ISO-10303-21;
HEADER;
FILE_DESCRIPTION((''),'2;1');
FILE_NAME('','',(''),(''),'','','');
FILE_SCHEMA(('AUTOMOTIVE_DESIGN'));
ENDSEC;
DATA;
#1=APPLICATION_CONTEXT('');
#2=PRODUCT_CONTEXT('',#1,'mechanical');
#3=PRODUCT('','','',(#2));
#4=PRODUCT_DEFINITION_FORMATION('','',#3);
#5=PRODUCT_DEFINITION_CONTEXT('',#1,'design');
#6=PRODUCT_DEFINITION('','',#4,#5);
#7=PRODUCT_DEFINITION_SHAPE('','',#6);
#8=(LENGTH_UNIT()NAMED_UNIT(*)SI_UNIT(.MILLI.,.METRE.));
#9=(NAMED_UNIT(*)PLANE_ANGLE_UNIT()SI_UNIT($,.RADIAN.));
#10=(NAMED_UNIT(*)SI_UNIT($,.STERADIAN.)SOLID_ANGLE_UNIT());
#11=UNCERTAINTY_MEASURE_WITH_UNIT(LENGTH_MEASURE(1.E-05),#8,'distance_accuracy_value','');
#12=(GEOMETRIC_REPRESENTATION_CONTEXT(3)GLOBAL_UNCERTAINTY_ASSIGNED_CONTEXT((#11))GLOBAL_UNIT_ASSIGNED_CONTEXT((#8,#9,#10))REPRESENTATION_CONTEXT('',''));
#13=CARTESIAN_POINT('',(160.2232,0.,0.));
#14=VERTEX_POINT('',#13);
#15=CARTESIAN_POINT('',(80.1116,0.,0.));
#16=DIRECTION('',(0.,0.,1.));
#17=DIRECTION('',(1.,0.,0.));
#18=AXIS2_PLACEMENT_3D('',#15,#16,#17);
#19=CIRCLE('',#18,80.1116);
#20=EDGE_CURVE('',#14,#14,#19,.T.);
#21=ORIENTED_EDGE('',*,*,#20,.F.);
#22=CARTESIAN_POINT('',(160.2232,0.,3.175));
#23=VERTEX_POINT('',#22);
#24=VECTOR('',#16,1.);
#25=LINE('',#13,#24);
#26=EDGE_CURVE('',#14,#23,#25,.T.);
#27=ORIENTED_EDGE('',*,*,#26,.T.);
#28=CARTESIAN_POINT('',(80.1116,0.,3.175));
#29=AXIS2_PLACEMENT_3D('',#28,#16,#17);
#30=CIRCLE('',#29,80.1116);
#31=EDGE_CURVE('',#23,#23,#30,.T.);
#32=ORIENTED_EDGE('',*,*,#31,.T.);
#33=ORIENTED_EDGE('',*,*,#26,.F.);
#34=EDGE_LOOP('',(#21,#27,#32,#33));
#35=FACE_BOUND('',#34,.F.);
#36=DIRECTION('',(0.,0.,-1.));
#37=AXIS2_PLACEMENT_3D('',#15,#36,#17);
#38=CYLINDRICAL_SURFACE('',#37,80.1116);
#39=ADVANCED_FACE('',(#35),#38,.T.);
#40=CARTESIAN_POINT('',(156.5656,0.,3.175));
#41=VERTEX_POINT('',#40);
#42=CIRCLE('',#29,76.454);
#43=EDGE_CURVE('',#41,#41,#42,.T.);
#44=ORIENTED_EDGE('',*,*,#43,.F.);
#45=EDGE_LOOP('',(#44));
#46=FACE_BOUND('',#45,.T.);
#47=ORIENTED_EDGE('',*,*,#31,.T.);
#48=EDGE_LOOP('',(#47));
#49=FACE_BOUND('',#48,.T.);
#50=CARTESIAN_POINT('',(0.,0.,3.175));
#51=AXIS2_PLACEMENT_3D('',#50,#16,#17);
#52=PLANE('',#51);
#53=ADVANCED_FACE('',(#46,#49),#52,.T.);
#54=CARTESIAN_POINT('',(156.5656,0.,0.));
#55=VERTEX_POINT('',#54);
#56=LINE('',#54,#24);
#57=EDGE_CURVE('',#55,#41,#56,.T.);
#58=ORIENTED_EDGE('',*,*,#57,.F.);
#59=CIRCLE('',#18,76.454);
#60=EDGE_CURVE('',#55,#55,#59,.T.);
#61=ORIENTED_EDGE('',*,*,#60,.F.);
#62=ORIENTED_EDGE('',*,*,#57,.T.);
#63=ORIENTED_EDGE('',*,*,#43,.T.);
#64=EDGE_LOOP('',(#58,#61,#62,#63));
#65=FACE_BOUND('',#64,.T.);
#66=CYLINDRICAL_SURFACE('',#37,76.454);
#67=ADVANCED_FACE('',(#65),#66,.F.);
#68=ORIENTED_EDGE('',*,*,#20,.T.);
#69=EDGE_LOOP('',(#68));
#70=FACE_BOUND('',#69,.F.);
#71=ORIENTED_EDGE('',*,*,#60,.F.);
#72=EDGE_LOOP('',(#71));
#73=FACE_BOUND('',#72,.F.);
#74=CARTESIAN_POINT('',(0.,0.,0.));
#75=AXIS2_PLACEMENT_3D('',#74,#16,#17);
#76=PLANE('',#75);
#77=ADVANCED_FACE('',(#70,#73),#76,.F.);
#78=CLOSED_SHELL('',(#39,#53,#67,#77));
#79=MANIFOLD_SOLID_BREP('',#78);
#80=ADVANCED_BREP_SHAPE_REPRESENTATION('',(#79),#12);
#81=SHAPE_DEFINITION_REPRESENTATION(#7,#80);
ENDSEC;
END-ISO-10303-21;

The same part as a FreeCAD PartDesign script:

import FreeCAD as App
import Part
import Sketcher
Q = App.Units.Quantity

doc = App.newDocument("Part")
body = doc.addObject("PartDesign::Body", "Body")

sketch1 = body.newObject("Sketcher::SketchObject", "Sketch")
sketch1.AttachmentSupport = (doc.getObject("XY_Plane"), [""])
sketch1.MapMode = "FlatFace"
sketch1.addGeometry([
    Part.Circle(App.Vector(80, 0, 0), App.Vector(0, 0, 1), 80),
    Part.Circle(App.Vector(80, 0, 0), App.Vector(0, 0, 1), 76),
], False)
sketch1.addConstraint([
    Sketcher.Constraint("Coincident", 1, 3, 0, 3),
    Sketcher.Constraint("PointOnObject", 0, 3, -1),
    Sketcher.Constraint("Diameter", 1, Q("6.02 in")),
    Sketcher.Constraint("Diameter", 0, Q("6.308 in")),
    Sketcher.Constraint("DistanceX", -1, 1, 0, 3, Q("3.154 in")),
])
pad1 = body.newObject("PartDesign::Pad", "Pad")
pad1.Profile = sketch1
pad1.Length = Q("0.125 in")

doc.recompute()
